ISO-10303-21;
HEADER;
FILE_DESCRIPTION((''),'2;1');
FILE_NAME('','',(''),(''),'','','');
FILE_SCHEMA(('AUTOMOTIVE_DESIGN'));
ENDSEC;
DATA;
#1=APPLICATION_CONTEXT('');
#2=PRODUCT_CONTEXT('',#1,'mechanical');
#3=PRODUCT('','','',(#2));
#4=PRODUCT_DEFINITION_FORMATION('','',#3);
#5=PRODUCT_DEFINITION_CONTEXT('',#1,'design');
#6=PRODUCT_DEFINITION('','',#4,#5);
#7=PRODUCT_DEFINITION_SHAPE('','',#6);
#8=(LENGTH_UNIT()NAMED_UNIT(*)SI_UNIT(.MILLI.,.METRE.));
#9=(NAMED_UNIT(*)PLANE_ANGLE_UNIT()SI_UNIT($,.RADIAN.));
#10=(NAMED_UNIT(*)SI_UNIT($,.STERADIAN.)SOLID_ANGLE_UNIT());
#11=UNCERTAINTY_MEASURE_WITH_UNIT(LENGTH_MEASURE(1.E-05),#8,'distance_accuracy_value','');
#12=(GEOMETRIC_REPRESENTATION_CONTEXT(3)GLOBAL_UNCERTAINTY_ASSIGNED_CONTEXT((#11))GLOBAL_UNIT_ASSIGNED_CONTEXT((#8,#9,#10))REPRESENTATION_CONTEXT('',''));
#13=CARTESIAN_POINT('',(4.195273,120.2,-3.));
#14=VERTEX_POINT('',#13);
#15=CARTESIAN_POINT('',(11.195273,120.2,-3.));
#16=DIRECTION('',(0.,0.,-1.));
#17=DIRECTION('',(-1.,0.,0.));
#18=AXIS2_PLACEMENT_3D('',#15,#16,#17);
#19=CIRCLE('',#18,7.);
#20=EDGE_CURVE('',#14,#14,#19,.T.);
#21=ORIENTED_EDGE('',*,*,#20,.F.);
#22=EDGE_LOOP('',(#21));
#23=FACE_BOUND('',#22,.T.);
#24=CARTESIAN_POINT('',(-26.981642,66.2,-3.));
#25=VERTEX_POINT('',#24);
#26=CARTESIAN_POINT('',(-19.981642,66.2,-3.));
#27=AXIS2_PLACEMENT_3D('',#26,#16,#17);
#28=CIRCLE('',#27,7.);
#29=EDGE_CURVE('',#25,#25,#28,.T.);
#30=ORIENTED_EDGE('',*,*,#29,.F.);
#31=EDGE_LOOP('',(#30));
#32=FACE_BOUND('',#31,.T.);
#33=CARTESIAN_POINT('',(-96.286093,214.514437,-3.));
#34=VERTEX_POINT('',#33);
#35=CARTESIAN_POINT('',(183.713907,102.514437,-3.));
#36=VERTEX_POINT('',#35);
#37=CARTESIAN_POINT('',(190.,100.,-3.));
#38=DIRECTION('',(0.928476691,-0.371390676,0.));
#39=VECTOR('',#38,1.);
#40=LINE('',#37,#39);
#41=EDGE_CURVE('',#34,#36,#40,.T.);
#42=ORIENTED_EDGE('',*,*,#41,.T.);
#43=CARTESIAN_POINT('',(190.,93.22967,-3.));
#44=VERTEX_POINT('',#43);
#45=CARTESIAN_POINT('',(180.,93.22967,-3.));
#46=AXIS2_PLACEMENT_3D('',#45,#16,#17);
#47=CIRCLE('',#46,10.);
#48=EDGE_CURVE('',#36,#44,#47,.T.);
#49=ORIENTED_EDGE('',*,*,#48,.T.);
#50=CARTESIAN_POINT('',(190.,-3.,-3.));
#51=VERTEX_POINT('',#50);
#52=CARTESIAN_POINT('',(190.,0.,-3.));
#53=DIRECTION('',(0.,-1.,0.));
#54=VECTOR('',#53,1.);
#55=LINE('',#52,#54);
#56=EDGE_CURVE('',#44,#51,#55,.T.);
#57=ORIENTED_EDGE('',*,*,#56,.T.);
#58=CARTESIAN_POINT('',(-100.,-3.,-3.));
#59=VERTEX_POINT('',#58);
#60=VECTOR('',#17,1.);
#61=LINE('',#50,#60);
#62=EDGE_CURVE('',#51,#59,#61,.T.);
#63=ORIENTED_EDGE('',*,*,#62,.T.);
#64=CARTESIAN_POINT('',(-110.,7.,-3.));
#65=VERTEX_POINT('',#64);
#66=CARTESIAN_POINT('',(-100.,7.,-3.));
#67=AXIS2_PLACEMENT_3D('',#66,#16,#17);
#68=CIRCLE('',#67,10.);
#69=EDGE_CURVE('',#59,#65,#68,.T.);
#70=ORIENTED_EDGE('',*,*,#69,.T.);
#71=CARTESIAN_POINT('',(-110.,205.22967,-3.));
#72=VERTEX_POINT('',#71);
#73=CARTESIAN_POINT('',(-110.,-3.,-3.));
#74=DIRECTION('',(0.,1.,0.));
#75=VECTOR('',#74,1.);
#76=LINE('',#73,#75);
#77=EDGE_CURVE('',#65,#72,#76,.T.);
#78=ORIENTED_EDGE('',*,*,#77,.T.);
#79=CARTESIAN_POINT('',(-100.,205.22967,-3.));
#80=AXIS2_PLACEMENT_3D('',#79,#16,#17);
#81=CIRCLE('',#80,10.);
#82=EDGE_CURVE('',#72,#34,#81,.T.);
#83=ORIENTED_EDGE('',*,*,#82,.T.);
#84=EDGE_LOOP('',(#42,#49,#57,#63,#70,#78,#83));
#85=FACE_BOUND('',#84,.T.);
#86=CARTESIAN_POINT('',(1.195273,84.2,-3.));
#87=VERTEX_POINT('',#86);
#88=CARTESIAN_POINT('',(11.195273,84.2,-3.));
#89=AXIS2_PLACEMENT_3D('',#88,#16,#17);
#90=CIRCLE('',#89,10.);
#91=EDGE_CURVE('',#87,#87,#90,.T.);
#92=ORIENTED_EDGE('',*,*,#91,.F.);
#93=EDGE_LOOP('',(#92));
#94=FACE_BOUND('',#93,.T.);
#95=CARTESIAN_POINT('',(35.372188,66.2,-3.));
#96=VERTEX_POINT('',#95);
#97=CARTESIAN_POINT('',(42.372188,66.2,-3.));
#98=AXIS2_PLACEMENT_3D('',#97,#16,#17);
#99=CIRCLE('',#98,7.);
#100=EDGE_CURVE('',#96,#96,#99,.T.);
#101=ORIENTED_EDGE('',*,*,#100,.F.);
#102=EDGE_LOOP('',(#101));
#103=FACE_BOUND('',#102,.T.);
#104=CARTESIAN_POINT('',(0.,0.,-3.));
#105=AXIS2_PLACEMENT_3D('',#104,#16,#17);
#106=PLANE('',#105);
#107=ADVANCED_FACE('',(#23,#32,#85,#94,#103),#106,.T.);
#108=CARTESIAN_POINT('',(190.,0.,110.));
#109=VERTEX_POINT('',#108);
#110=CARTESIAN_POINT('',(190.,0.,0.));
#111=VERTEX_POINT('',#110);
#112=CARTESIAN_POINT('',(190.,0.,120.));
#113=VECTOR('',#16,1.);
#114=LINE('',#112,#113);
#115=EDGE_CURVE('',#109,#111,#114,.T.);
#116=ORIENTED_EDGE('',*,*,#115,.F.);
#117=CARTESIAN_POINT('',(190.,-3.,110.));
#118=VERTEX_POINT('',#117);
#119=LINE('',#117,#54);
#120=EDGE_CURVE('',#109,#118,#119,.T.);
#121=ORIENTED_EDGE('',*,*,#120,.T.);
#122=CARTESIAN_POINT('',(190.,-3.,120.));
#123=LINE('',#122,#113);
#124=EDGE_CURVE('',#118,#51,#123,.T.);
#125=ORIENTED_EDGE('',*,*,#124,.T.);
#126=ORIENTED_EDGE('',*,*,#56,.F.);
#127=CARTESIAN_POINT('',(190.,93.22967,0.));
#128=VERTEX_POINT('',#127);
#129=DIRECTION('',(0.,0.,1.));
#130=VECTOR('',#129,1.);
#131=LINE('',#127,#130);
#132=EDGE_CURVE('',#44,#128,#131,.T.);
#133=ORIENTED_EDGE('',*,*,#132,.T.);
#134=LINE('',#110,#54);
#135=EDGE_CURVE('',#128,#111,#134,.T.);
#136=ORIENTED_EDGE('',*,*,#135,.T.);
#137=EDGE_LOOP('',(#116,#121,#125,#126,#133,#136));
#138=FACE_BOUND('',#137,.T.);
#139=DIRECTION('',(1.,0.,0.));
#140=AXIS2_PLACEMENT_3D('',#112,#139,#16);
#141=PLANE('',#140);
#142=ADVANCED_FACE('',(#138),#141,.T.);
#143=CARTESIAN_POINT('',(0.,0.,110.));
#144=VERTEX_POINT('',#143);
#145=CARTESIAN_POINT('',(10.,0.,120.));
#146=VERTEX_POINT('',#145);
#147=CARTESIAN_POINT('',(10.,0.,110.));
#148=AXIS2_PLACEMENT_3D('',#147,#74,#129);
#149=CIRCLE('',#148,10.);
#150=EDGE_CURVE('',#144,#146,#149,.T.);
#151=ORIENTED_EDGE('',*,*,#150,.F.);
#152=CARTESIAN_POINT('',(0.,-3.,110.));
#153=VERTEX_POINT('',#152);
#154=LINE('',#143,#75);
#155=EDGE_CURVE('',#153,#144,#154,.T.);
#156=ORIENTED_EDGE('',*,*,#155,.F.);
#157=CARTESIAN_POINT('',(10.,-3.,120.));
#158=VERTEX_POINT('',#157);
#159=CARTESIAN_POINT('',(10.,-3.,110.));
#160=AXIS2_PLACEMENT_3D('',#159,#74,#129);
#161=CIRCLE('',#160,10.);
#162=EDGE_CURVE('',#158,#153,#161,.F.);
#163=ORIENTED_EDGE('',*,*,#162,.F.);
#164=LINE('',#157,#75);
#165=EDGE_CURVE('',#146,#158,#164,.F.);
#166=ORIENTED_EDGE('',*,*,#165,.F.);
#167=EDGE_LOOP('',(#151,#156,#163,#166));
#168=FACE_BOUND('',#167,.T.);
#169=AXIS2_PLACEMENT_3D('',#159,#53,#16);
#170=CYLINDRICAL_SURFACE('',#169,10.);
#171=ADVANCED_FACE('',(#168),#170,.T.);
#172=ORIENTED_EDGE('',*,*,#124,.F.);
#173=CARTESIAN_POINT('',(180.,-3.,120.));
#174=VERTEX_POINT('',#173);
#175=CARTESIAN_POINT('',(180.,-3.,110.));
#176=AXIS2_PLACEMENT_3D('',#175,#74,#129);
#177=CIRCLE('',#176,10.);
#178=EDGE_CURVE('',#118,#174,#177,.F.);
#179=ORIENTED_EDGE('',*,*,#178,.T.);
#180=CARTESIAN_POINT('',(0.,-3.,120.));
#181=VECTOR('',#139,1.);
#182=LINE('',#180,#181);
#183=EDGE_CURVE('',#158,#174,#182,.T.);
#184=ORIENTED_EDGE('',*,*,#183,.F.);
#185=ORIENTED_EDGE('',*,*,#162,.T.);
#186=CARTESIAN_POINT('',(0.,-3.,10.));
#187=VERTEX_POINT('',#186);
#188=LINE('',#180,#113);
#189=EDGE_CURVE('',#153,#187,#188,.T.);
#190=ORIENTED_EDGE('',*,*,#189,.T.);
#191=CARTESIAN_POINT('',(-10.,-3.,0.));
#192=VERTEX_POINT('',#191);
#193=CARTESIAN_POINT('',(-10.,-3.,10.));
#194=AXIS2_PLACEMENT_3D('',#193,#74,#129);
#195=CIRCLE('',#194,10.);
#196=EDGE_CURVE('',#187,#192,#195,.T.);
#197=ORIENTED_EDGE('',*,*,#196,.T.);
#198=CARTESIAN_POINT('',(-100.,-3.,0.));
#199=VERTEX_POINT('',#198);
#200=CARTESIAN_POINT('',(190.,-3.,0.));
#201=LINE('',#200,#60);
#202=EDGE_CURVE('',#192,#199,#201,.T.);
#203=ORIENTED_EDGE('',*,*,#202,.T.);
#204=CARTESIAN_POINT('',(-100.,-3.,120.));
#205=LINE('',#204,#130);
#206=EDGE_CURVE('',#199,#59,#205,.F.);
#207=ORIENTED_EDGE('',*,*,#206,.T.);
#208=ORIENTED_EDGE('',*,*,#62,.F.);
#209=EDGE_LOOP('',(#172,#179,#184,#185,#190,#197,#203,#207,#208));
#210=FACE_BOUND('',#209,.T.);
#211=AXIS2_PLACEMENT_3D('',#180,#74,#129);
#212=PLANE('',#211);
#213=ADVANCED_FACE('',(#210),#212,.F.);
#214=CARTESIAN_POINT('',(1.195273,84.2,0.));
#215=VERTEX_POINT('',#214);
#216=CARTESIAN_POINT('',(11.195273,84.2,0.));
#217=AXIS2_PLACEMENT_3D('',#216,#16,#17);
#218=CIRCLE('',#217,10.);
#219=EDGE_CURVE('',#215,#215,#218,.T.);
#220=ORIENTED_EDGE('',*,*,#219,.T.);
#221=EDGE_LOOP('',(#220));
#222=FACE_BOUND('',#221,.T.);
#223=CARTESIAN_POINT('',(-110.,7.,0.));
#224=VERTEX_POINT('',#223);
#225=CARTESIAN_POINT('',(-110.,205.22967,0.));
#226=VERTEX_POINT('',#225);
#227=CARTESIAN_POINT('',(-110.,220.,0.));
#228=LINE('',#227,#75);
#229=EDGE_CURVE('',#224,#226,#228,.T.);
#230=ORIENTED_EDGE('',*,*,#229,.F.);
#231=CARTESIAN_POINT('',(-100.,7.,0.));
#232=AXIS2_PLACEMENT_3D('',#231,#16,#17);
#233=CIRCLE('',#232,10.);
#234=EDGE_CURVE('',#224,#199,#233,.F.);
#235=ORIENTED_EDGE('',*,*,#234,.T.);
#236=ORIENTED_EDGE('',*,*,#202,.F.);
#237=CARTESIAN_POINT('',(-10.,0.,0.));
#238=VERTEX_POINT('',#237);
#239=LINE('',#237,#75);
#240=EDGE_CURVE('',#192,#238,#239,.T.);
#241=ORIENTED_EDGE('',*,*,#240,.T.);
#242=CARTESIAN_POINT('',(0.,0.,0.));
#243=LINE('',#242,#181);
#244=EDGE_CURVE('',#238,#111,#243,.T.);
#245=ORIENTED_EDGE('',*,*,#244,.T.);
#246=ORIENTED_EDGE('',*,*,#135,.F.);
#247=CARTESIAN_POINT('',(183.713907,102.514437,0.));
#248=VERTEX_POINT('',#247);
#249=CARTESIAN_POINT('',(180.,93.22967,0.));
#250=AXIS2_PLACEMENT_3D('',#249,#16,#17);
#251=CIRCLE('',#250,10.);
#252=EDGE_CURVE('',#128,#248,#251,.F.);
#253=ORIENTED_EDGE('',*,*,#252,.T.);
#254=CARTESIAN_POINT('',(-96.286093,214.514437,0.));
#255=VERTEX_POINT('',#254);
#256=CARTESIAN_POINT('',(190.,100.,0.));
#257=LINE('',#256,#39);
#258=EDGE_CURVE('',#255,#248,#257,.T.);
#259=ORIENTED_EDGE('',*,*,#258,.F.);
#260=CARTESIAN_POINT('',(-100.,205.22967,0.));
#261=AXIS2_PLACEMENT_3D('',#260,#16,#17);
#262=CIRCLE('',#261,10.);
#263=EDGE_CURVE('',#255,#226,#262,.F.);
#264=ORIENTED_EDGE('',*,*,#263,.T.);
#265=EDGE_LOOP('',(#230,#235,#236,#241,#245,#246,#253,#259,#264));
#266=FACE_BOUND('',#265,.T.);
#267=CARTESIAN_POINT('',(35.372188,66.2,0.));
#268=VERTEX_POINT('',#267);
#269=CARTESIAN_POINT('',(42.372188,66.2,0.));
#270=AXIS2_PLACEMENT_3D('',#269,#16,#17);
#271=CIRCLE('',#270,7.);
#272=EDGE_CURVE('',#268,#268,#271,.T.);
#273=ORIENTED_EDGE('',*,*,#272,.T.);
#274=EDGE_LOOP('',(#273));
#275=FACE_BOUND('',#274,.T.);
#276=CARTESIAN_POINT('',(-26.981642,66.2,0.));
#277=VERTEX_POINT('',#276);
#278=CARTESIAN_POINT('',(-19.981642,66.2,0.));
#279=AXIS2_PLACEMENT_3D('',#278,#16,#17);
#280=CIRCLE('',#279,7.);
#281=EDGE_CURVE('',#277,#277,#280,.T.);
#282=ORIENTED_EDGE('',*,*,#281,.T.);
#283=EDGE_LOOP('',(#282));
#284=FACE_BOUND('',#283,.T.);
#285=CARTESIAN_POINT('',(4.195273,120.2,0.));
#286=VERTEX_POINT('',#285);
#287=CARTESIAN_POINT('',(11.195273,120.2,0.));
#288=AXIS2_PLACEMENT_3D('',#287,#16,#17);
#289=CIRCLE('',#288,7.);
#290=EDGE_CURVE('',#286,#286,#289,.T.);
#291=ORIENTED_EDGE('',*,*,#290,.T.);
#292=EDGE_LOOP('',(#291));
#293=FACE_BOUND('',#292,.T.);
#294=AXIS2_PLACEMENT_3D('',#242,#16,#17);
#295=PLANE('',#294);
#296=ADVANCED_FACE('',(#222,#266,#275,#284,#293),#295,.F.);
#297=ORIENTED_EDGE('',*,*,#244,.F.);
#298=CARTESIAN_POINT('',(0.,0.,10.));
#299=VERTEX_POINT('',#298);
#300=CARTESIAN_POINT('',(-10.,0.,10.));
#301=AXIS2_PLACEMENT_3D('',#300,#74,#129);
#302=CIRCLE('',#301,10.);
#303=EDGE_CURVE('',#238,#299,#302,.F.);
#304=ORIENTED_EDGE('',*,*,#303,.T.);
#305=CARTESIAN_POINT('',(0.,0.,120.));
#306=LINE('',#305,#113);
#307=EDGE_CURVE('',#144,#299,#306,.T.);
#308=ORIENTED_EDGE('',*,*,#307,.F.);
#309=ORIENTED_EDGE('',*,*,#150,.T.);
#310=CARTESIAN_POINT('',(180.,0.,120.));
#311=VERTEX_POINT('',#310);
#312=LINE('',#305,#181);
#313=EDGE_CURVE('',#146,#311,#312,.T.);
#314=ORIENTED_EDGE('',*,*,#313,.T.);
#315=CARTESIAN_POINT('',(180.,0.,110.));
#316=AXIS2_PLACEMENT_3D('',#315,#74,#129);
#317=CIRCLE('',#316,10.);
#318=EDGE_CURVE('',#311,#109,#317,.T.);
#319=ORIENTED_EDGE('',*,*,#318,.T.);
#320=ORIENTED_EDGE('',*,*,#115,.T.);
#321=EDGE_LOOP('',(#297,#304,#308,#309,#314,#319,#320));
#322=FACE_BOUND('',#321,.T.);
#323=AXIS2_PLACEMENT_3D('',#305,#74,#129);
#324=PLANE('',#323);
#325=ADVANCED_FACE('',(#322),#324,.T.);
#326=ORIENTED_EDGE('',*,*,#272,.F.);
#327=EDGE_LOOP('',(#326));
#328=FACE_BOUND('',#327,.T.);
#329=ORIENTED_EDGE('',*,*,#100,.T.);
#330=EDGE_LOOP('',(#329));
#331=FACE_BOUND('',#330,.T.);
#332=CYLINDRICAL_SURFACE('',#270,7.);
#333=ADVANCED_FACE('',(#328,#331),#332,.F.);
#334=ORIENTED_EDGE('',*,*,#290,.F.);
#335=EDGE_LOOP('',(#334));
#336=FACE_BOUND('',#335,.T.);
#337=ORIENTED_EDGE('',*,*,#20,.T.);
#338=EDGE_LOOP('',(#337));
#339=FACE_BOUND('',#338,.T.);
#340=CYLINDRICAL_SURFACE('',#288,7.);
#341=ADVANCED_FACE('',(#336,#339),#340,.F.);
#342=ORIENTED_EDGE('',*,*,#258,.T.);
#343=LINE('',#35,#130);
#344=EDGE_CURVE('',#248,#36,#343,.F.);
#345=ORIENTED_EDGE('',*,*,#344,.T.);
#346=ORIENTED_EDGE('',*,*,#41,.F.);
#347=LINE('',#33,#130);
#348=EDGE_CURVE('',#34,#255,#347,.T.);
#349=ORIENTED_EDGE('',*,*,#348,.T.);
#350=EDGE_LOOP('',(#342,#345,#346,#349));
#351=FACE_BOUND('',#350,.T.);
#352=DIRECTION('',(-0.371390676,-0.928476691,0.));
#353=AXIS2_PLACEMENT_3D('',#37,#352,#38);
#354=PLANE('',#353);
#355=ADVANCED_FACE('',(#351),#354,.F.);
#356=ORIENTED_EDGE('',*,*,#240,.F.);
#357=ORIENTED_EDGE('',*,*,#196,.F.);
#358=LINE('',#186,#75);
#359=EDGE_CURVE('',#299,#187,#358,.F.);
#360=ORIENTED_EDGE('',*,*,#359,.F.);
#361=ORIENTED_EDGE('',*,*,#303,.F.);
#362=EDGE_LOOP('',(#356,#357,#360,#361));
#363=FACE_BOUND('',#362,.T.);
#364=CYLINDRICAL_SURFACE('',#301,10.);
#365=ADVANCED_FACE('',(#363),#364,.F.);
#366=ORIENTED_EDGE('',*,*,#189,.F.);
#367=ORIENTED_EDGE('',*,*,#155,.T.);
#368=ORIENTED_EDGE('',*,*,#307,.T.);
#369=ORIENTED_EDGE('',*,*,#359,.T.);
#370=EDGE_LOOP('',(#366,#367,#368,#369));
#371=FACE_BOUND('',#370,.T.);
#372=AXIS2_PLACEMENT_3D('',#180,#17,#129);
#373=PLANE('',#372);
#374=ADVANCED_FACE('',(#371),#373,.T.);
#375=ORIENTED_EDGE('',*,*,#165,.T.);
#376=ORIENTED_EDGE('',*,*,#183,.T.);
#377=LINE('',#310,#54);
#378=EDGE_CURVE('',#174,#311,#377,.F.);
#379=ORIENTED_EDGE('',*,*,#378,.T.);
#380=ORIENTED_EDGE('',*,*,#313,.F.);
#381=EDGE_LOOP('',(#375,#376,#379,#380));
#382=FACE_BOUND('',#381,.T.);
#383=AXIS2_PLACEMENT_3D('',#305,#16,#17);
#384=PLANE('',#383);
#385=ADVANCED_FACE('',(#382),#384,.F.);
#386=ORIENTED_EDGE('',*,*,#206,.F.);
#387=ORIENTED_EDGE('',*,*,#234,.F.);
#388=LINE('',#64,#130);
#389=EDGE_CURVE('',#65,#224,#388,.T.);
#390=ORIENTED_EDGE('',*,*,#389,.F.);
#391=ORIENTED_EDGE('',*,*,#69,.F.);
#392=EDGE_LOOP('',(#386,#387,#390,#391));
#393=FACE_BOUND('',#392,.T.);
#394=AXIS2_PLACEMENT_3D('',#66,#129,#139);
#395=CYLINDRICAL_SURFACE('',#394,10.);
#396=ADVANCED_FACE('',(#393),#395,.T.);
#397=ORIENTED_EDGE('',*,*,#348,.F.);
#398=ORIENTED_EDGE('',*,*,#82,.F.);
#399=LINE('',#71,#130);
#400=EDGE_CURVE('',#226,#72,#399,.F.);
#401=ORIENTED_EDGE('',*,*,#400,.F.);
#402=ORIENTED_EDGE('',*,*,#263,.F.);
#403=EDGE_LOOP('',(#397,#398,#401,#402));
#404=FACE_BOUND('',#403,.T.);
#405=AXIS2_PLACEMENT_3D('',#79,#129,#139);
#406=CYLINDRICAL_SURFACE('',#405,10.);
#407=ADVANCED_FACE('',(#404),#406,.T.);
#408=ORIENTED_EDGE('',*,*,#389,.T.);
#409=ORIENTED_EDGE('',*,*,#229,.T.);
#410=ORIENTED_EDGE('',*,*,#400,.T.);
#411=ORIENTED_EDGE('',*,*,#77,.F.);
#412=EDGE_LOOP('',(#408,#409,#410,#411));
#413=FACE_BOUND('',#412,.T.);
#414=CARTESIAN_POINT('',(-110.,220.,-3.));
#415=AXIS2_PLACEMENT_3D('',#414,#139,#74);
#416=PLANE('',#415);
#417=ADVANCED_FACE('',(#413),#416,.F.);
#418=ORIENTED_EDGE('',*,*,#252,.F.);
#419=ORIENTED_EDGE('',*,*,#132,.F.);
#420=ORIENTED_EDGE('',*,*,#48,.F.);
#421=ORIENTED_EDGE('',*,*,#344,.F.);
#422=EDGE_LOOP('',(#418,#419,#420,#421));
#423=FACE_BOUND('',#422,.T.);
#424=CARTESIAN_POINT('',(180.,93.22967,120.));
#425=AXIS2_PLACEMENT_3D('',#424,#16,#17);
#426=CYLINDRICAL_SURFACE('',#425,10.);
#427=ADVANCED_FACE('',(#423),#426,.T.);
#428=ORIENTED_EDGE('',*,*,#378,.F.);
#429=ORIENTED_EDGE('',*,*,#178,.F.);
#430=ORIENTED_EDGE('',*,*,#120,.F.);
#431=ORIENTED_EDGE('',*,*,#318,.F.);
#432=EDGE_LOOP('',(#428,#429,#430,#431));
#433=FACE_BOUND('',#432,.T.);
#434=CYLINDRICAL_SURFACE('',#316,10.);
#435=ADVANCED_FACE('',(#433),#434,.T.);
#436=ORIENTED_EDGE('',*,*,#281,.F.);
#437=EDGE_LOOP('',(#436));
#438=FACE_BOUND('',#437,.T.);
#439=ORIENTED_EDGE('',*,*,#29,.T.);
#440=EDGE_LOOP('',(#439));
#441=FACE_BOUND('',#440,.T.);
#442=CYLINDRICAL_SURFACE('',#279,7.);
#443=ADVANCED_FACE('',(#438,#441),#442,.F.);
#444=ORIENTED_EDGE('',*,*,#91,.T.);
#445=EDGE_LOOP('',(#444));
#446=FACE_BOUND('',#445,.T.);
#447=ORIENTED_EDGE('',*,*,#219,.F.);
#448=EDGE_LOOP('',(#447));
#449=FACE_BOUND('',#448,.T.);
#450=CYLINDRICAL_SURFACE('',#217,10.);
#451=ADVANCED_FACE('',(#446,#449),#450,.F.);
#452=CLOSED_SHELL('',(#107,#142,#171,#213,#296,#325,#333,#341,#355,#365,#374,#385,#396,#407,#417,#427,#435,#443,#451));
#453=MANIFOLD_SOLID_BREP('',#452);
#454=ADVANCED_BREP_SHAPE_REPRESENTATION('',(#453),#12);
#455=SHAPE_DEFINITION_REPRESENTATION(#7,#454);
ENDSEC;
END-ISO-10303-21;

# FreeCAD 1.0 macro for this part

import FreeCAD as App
import Part
import Sketcher
from FreeCAD import Vector


def edges_at(feature, points):
    """Names of the edges that pass closest to the given points."""
    edges = feature.Shape.Edges
    near = lambda p: min(range(len(edges)), key=lambda i: edges[i].distToShape(Part.Vertex(*p))[0])
    return sorted({f"Edge{near(p) + 1}" for p in points})


def add_polygon(sketch, points):
    """Adds a closed chain of lines whose ends are joined by coincident constraints."""
    first, n = sketch.GeometryCount, len(points)
    for a, b in zip(points, points[1:] + points[:1]):
        sketch.addGeometry(Part.LineSegment(App.Vector(*a, 0), App.Vector(*b, 0)), False)
    for i in range(n):
        sketch.addConstraint(Sketcher.Constraint("Coincident", first + i, 2, first + (i + 1) % n, 1))

doc = App.newDocument("Part")
body = doc.addObject("PartDesign::Body", "Body")

sketch1 = body.newObject("Sketcher::SketchObject", "Sketch")
sketch1.AttachmentSupport = (doc.getObject("XY_Plane"), [""])
sketch1.MapMode = "FlatFace"
add_polygon(sketch1, [(0, 0), (0, -3), (190, -3), (190, 0)])
sketch1.addConstraint(Sketcher.Constraint("Vertical", 0))
sketch1.addConstraint(Sketcher.Constraint("Horizontal", 1))
sketch1.addConstraint(Sketcher.Constraint("Vertical", 2))
sketch1.addConstraint(Sketcher.Constraint("Horizontal", 3))
sketch1.addConstraint(Sketcher.Constraint("Coincident", 3, 2, -1, 1))
sketch1.addConstraint(Sketcher.Constraint("DistanceX", 1, 1, 1, 2, 190.0))
sketch1.addConstraint(Sketcher.Constraint("DistanceY", 0, 2, 0, 1, 3.0))
pad1 = body.newObject("PartDesign::Pad", "Pad")
pad1.Profile = sketch1
pad1.Length = 120

sketch2 = body.newObject("Sketcher::SketchObject", "Sketch001")
sketch2.AttachmentSupport = (doc.getObject("XY_Plane"), [""])
sketch2.MapMode = "FlatFace"
add_polygon(sketch2, [(190, 100), (190, -3), (-110, -3), (-110, 220)])
sketch2.addConstraint(Sketcher.Constraint("Vertical", 0))
sketch2.addConstraint(Sketcher.Constraint("Horizontal", 1))
sketch2.addConstraint(Sketcher.Constraint("Vertical", 2))
sketch2.addConstraint(Sketcher.Constraint("DistanceX", 1, 2, 1, 1, 300.0))
sketch2.addConstraint(Sketcher.Constraint("DistanceY", 0, 2, 0, 1, 103.0))
sketch2.addConstraint(Sketcher.Constraint("DistanceY", 2, 1, 2, 2, 223.0))
sketch2.addConstraint(Sketcher.Constraint("DistanceX", -1, 1, 0, 2, 190.0))
sketch2.addConstraint(Sketcher.Constraint("DistanceY", 0, 2, -1, 1, 3.0))
pad2 = body.newObject("PartDesign::Pad", "Pad001")
pad2.Profile = sketch2
pad2.Length = 3
pad2.Reversed = True
doc.recompute()

fillet = body.newObject("PartDesign::Fillet", "Fillet")
fillet.Base = (pad2, edges_at(pad2, [
    (0, -1.5, 120),
    (-110, -3, -1.5),
    (-110, 220, -1.5),
    (190, 100, -1.5),
    (0, -1.5, 0),
    (190, -1.5, 120),
]))
fillet.Radius = 10

sketch3 = body.newObject("Sketcher::SketchObject", "Sketch002")
sketch3.AttachmentSupport = (doc.getObject("XY_Plane"), [""])
sketch3.MapMode = "FlatFace"
sketch3.AttachmentOffset = App.Placement(Vector(0, 0, -3), App.Rotation())
sketch3.addGeometry(Part.Circle(Vector(42, 66, 0), Vector(0, 0, 1), 7), False)
sketch3.addGeometry(Part.Circle(Vector(-20, 66, 0), Vector(0, 0, 1), 7), False)
sketch3.addGeometry(Part.Circle(Vector(11, 120, 0), Vector(0, 0, 1), 7), False)
sketch3.addGeometry(Part.Circle(Vector(11, 84, 0), Vector(0, 0, 1), 10), False)
sketch3.addConstraint(Sketcher.Constraint("Equal", 0, 1))
sketch3.addConstraint(Sketcher.Constraint("Equal", 1, 2))
sketch3.addConstraint(Sketcher.Constraint("Horizontal", 0, 3, 1, 3))
sketch3.addConstraint(Sketcher.Constraint("Vertical", 2, 3, 3, 3))
sketch3.addConstraint(Sketcher.Constraint("Diameter", 0, 14.0))
sketch3.addConstraint(Sketcher.Constraint("Diameter", 3, 20.0))
sketch3.addConstraint(Sketcher.Constraint("DistanceY", 0, 3, 2, 3, 54.0))
sketch3.addConstraint(Sketcher.Constraint("DistanceY", 0, 3, 3, 3, 18.0))
sketch3.addConstraint(Sketcher.Constraint("DistanceY", -1, 1, 0, 3, 66.2))
sketch3.addConstraint(Sketcher.Constraint("DistanceX", 1, 3, -1, 1, 19.981642))
sketch3.addConstraint(Sketcher.Constraint("DistanceX", 1, 3, 0, 3, 62.353829))
sketch3.addConstraint(Sketcher.Constraint("DistanceX", -1, 1, 2, 3, 11.195273))
pocket1 = body.newObject("PartDesign::Pocket", "Pocket")
pocket1.Profile = sketch3
pocket1.Length = 3
pocket1.Reversed = True

doc.recompute()
